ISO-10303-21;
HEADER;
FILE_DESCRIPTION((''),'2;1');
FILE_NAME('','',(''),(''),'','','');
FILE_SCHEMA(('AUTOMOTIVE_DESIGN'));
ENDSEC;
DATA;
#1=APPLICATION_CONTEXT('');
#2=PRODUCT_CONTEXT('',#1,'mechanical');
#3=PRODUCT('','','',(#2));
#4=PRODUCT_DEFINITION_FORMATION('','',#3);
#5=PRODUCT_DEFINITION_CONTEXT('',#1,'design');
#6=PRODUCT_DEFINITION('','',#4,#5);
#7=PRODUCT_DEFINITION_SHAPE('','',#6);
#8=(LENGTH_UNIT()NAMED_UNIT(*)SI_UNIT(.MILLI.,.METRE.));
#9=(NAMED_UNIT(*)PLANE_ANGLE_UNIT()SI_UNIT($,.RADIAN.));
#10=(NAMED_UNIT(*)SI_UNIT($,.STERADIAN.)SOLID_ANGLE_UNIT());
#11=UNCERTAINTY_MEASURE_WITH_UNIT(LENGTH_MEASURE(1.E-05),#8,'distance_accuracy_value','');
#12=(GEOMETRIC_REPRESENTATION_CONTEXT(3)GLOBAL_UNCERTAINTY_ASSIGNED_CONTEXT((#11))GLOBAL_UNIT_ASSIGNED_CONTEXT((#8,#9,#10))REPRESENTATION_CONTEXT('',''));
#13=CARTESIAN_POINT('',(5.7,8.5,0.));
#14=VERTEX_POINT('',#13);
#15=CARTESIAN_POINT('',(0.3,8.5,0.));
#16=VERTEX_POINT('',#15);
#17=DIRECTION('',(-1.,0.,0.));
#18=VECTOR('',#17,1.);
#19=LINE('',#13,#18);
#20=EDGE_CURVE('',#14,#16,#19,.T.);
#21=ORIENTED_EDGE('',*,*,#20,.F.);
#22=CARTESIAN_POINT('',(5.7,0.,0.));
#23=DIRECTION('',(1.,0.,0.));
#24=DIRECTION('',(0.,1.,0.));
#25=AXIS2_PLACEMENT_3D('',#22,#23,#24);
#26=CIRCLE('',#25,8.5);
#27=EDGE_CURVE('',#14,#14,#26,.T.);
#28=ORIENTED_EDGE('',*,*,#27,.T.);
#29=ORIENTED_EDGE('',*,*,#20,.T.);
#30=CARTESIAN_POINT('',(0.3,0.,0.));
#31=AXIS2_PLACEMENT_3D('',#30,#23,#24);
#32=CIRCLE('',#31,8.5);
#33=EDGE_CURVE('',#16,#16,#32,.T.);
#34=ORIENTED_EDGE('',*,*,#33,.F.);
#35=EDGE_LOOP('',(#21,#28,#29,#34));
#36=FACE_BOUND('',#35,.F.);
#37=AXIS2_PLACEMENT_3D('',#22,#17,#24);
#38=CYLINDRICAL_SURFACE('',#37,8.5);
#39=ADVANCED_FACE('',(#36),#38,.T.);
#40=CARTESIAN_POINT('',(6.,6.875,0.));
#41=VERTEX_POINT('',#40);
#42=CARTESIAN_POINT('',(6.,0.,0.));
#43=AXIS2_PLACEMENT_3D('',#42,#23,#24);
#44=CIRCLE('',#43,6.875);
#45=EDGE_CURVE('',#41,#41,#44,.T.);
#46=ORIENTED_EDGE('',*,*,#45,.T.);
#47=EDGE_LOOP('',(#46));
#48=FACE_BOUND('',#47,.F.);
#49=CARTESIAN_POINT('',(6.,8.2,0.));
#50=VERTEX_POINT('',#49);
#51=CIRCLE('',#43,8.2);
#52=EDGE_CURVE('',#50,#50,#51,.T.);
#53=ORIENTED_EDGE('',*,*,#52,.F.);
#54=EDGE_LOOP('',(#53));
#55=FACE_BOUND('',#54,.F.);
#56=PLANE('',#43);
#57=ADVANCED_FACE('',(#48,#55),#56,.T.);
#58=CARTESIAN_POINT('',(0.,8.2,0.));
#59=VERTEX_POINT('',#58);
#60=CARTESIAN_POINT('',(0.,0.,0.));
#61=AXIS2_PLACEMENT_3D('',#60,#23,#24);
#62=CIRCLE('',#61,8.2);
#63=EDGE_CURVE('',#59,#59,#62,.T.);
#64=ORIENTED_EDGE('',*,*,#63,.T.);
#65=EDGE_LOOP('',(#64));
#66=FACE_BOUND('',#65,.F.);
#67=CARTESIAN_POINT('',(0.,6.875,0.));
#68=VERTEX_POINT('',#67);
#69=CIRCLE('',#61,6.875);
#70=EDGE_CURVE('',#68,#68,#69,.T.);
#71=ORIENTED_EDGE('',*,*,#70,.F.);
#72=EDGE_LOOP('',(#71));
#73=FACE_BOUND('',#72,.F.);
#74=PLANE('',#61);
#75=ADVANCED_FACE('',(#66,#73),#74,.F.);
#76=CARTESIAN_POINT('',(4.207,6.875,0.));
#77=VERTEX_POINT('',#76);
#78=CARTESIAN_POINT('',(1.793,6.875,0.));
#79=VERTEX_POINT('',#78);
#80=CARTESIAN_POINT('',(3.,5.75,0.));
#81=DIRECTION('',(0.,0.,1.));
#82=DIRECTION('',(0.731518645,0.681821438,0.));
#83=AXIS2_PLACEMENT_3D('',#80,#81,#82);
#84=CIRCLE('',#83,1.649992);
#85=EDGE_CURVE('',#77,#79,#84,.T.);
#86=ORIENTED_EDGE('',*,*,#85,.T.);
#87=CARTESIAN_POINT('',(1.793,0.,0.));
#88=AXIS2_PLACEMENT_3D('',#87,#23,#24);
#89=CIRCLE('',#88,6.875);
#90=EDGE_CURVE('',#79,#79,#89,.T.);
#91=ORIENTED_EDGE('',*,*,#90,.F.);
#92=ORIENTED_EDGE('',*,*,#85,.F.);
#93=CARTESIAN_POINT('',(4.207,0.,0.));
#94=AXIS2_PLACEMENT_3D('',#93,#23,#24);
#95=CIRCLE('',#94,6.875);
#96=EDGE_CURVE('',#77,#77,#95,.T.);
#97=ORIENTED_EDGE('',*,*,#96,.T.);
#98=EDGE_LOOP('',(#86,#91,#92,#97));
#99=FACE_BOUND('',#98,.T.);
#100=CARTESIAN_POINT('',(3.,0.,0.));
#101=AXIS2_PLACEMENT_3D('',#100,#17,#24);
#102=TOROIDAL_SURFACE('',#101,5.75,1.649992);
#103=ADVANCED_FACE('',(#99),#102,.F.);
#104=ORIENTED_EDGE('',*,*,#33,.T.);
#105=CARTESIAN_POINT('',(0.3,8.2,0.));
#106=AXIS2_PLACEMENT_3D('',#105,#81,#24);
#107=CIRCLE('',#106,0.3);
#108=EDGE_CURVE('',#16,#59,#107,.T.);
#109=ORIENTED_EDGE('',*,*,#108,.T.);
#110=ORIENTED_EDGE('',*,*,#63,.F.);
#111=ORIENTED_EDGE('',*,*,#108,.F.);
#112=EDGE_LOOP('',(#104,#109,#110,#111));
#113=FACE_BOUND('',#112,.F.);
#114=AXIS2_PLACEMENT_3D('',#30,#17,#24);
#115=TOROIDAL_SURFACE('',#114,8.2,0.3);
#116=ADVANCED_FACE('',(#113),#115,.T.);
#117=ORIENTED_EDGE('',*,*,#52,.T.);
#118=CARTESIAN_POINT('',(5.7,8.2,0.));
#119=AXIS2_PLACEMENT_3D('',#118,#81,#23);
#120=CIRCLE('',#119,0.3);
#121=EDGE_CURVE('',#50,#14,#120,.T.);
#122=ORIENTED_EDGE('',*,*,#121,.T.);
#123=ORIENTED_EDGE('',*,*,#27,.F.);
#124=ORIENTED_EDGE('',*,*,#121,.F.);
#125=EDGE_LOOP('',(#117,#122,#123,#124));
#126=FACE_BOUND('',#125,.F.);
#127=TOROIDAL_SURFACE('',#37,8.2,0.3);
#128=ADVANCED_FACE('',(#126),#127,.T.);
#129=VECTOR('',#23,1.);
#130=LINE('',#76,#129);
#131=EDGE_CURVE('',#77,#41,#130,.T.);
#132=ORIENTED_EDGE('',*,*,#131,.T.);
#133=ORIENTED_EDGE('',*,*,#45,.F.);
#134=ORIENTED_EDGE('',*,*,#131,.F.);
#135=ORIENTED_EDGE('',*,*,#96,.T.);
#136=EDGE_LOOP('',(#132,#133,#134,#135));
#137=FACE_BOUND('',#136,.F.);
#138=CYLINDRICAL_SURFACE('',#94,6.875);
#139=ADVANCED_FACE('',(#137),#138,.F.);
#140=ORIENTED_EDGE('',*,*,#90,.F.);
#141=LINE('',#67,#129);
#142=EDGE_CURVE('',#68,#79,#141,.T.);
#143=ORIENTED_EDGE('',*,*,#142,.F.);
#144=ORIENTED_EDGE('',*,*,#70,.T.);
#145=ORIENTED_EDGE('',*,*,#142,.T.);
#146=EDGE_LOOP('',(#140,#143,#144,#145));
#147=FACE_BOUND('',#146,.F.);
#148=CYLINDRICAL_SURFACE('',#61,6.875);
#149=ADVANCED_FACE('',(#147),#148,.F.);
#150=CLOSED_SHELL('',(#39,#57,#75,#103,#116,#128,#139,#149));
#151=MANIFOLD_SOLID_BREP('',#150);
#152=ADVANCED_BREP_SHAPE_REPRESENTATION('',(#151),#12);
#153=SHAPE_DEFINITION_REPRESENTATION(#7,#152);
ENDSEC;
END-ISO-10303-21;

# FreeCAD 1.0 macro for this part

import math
import FreeCAD as App
import Part
import Sketcher

V = App.Vector

doc = App.newDocument("Part")
body = doc.addObject("PartDesign::Body", "Body")

# Sketch on XY plane
sketch1 = doc.addObject("Sketcher::SketchObject", "Sketch")
body.addObject(sketch1)
sketch1.AttachmentSupport = (doc.XY_Plane, [""])
sketch1.MapMode = "FlatFace"
sketch1.addGeometry(Part.LineSegment(V(0, 8.2, 0), V(0, 6.88, 0)), False)
sketch1.addGeometry(Part.LineSegment(V(0, 6.88, 0), V(1.79, 6.88, 0)), False)
sketch1.addGeometry(Part.ArcOfCircle(Part.Circle(V(3, 5.75, 0), V(0, 0, 1), 1.65), math.radians(43), math.radians(137)), False)
sketch1.addGeometry(Part.LineSegment(V(4.21, 6.88, 0), V(6, 6.88, 0)), False)
sketch1.addGeometry(Part.LineSegment(V(6, 6.88, 0), V(6, 8.2, 0)), False)
sketch1.addGeometry(Part.ArcOfCircle(Part.Circle(V(5.7, 8.2, 0), V(0, 0, 1), 0.3), math.radians(0), math.radians(90)), False)
sketch1.addGeometry(Part.LineSegment(V(5.7, 8.5, 0), V(0.3, 8.5, 0)), False)
sketch1.addGeometry(Part.ArcOfCircle(Part.Circle(V(0.3, 8.2, 0), V(0, 0, 1), 0.3), math.radians(90), math.radians(180)), False)
sketch1.addConstraint(Sketcher.Constraint("Coincident", 0, 2, 1, 1))
sketch1.addConstraint(Sketcher.Constraint("Coincident", 1, 2, 2, 2))
sketch1.addConstraint(Sketcher.Constraint("Coincident", 2, 1, 3, 1))
sketch1.addConstraint(Sketcher.Constraint("Coincident", 3, 2, 4, 1))
sketch1.addConstraint(Sketcher.Constraint("Tangent", 4, 2, 5, 1))
sketch1.addConstraint(Sketcher.Constraint("Tangent", 5, 2, 6, 1))
sketch1.addConstraint(Sketcher.Constraint("Tangent", 6, 2, 7, 1))
sketch1.addConstraint(Sketcher.Constraint("Tangent", 7, 2, 0, 1))
sketch1.addConstraint(Sketcher.Constraint("Vertical", 0))
sketch1.addConstraint(Sketcher.Constraint("Horizontal", 1))
sketch1.addConstraint(Sketcher.Constraint("Horizontal", 3))
sketch1.addConstraint(Sketcher.Constraint("Vertical", 4))
sketch1.addConstraint(Sketcher.Constraint("Horizontal", 6))
sketch1.addConstraint(Sketcher.Constraint("Equal", 5, 7))
sketch1.addConstraint(Sketcher.Constraint("PointOnObject", 0, 2, -2))
sketch1.addConstraint(Sketcher.Constraint("Horizontal", 1, 2, 2, 1))
sketch1.addConstraint(Sketcher.Constraint("Equal", 1, 3))
sketch1.addConstraint(Sketcher.Constraint("Radius", 5, 0.3))
sketch1.addConstraint(Sketcher.Constraint("Radius", 2, 1.65))
sketch1.addConstraint(Sketcher.Constraint("DistanceX", 6, 2, 6, 1, 5.4))
sketch1.addConstraint(Sketcher.Constraint("DistanceY", -1, 1, 5, 3, 8.2))
sketch1.addConstraint(Sketcher.Constraint("DistanceX", 1, 1, 1, 2, 1.793))
sketch1.addConstraint(Sketcher.Constraint("DistanceY", 0, 2, 0, 1, 1.325))
revolution = doc.addObject("PartDesign::Revolution", "Revolution")
body.addObject(revolution)
revolution.Profile = sketch1
revolution.ReferenceAxis = (sketch1, ["H_Axis"])
revolution.Angle = 360

doc.recompute()
